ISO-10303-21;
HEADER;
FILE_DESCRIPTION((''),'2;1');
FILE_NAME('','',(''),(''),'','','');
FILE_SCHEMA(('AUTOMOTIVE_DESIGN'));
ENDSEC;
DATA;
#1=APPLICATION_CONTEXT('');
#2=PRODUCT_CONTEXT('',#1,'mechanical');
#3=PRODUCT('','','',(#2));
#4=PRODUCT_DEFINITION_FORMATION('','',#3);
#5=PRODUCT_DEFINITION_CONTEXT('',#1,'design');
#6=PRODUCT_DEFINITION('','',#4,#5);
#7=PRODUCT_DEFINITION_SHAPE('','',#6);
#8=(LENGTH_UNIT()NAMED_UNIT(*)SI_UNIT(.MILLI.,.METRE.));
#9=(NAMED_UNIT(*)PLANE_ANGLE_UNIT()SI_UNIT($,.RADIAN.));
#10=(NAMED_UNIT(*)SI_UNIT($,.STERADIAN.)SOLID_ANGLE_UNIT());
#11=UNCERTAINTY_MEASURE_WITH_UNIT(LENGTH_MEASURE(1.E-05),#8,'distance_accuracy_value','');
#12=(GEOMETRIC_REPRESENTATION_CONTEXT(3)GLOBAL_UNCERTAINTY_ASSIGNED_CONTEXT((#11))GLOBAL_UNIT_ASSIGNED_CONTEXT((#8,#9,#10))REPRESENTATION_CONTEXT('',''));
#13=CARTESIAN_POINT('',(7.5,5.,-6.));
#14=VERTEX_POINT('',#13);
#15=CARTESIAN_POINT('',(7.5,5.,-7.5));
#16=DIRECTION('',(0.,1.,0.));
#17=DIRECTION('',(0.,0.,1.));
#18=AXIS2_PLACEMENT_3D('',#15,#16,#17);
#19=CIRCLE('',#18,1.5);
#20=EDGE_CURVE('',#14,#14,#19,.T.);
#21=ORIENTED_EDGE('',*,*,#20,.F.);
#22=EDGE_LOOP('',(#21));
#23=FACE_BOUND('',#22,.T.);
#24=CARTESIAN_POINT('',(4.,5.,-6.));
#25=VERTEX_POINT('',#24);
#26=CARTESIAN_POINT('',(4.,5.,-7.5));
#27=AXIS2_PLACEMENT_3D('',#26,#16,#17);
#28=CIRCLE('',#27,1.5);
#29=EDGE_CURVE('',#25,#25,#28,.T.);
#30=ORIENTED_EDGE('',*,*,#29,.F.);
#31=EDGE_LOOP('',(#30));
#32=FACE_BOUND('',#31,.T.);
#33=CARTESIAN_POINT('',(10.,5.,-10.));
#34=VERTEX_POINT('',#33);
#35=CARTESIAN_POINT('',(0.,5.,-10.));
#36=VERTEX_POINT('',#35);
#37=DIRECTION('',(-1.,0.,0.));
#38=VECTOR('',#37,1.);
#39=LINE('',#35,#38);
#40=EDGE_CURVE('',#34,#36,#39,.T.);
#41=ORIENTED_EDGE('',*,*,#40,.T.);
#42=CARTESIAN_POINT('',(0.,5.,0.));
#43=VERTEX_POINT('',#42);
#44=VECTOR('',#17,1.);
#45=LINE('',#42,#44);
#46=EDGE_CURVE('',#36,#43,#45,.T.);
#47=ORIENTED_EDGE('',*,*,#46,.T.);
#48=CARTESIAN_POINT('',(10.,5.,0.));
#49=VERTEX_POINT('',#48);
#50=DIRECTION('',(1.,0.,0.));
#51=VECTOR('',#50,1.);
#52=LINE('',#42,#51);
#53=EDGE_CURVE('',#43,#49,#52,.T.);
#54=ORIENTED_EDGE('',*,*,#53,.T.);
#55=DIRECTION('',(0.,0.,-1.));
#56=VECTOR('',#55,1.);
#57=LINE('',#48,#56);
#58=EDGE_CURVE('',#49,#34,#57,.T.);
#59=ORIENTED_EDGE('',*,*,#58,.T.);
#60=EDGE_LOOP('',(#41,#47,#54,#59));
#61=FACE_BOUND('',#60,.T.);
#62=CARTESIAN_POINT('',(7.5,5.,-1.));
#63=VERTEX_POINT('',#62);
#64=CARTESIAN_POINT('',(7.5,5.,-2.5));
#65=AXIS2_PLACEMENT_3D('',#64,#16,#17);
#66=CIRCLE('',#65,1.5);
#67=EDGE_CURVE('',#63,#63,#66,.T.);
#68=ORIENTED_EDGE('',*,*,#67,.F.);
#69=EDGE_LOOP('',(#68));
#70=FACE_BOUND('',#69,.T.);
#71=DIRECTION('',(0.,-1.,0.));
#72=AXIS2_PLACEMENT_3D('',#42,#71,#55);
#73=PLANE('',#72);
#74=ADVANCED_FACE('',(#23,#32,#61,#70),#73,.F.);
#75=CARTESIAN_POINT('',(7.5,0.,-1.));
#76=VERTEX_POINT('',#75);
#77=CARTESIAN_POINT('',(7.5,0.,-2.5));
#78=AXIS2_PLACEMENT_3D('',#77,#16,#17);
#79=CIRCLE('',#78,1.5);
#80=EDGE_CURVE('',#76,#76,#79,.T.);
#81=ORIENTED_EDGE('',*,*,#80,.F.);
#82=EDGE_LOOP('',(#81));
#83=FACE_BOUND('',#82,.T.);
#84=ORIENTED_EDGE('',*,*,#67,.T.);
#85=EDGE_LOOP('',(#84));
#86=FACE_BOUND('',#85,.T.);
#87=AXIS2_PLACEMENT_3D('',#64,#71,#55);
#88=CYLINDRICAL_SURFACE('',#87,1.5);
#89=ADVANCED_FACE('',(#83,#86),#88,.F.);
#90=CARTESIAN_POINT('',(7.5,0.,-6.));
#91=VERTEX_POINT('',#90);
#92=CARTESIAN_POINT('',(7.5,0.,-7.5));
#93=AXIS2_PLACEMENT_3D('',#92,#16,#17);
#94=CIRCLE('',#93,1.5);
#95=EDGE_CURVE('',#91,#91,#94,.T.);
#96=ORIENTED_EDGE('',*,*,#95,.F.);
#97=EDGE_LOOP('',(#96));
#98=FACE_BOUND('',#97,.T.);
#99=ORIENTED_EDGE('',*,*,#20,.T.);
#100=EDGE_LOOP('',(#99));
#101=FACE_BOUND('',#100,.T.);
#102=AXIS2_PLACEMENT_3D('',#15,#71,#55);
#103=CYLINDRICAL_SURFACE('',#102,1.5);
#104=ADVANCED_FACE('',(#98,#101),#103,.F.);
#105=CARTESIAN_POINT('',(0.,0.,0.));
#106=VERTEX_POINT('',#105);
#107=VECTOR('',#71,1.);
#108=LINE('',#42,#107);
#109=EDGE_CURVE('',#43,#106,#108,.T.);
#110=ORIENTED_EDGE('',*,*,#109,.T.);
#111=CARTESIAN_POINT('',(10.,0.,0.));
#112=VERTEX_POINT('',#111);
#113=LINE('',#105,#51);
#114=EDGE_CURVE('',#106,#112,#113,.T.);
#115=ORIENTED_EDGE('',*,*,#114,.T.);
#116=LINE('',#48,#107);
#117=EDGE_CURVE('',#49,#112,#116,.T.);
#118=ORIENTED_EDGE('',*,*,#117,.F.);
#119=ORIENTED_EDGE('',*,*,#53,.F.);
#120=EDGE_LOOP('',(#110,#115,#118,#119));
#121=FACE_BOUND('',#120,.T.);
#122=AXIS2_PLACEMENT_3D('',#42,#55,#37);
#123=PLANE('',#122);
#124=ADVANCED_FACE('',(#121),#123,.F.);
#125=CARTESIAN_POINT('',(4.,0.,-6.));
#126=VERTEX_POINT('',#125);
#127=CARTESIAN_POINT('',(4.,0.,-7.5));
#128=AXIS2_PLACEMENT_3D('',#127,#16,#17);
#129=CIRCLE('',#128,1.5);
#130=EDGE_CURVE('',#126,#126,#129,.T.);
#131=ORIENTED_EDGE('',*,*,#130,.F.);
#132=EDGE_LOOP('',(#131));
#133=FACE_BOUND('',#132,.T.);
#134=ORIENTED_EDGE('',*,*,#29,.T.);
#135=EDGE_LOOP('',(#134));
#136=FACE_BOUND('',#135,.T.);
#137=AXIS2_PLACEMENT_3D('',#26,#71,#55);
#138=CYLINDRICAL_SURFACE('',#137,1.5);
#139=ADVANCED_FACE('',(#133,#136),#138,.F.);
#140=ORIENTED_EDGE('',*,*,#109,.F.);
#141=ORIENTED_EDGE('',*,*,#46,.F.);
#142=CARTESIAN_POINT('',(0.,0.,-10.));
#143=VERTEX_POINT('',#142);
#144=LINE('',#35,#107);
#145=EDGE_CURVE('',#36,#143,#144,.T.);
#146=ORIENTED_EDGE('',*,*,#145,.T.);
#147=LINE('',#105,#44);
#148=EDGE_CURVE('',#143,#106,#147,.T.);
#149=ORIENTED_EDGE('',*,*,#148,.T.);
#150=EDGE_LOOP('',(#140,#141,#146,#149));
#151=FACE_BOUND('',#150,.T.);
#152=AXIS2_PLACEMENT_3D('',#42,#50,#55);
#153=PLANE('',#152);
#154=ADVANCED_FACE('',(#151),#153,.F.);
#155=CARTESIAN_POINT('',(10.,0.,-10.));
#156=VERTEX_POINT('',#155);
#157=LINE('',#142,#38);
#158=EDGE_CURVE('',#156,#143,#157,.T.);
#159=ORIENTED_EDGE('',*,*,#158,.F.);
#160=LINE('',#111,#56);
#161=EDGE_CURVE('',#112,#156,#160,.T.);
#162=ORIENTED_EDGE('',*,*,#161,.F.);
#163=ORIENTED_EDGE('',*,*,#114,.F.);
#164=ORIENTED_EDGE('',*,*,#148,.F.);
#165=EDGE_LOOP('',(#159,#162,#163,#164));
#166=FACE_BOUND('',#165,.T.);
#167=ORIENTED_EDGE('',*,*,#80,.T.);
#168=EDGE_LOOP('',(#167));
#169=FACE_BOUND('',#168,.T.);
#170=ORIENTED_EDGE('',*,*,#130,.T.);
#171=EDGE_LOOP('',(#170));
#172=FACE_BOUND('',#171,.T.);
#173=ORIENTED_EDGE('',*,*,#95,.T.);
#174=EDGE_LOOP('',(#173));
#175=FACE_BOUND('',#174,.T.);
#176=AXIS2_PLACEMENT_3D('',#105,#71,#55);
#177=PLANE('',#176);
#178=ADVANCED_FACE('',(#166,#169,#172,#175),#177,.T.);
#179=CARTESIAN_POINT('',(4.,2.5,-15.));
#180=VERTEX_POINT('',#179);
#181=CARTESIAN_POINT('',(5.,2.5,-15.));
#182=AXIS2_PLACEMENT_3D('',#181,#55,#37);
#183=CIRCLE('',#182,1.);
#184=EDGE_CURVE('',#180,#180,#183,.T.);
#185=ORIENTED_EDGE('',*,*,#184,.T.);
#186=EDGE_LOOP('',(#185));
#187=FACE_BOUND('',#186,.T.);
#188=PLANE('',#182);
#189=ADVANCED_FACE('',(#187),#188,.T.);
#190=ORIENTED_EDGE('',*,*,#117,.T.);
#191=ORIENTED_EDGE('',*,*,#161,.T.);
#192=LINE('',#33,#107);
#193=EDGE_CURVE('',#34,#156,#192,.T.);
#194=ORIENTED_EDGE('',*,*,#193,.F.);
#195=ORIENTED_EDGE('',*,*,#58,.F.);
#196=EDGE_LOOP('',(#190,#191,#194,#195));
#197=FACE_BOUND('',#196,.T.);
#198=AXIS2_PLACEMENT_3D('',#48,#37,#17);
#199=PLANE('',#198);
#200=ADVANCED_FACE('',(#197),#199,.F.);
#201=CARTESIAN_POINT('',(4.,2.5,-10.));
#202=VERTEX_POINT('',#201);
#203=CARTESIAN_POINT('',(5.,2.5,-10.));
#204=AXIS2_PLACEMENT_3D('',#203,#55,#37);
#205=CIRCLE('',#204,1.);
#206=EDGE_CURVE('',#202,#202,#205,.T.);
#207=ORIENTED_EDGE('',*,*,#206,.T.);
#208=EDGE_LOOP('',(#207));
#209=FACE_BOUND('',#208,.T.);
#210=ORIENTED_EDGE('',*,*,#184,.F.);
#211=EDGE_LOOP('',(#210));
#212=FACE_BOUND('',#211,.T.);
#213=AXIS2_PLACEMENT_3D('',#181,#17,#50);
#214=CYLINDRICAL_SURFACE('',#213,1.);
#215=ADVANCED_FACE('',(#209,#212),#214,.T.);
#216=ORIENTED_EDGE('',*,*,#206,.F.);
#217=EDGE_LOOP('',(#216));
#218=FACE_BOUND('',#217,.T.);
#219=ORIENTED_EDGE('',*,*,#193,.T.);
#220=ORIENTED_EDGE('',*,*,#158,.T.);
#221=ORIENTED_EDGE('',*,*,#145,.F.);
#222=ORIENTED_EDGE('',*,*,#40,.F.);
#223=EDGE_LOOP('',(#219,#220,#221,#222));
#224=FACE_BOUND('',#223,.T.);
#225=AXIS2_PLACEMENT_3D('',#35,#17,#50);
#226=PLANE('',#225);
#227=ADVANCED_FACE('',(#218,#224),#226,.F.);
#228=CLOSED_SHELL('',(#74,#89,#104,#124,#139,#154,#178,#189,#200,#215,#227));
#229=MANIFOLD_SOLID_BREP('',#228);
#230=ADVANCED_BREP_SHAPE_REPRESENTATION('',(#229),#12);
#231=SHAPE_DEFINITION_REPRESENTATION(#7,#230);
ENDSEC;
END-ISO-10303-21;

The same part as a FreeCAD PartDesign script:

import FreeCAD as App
import Part
import Sketcher

V = App.Vector


def add_polygon(sketch, points):
    """Adds a closed chain of lines whose ends are joined by coincident constraints."""
    first, n = sketch.GeometryCount, len(points)
    for a, b in zip(points, points[1:] + points[:1]):
        sketch.addGeometry(Part.LineSegment(App.Vector(*a, 0), App.Vector(*b, 0)), False)
    for i in range(n):
        sketch.addConstraint(Sketcher.Constraint("Coincident", first + i, 2, first + (i + 1) % n, 1))

doc = App.newDocument("Part")
body = doc.addObject("PartDesign::Body", "Body")

sketch1 = doc.addObject("Sketcher::SketchObject", "Sketch")
body.addObject(sketch1)
sketch1.AttachmentSupport = (doc.XZ_Plane, [""])
sketch1.MapMode = "FlatFace"
add_polygon(sketch1, [(0, -10), (0, 0), (10, 0), (10, -10)])
sketch1.addGeometry(Part.Circle(V(7.5, -2.5, 0), V(0, 0, 1), 1.5), False)
sketch1.addGeometry(Part.Circle(V(4, -7.5, 0), V(0, 0, 1), 1.5), False)
sketch1.addGeometry(Part.Circle(V(7.5, -7.5, 0), V(0, 0, 1), 1.5), False)
sketch1.addConstraint([
    Sketcher.Constraint("Vertical", 0),
    Sketcher.Constraint("Horizontal", 1),
    Sketcher.Constraint("Vertical", 2),
    Sketcher.Constraint("Horizontal", 3),
    Sketcher.Constraint("Coincident", 0, 2, -1, 1),
    Sketcher.Constraint("Equal", 4, 5),
    Sketcher.Constraint("Equal", 5, 6),
    Sketcher.Constraint("Horizontal", 5, 3, 6, 3),
    Sketcher.Constraint("Vertical", 4, 3, 6, 3),
    Sketcher.Constraint("Equal", 3, 0),
    Sketcher.Constraint("Diameter", 4, 3.0),
    Sketcher.Constraint("DistanceX", 1, 1, 1, 2, 10.0),
    Sketcher.Constraint("DistanceX", -1, 1, 5, 3, 4.0),
    Sketcher.Constraint("DistanceY", 5, 3, 4, 3, 5.0),
    Sketcher.Constraint("DistanceX", -1, 1, 4, 3, 7.5),
    Sketcher.Constraint("DistanceY", 4, 3, -1, 1, 2.5),
])
pad1 = doc.addObject("PartDesign::Pad", "Pad")
body.addObject(pad1)
pad1.Profile = sketch1
pad1.Length = 5
pad1.Reversed = True

sketch2 = doc.addObject("Sketcher::SketchObject", "Sketch001")
body.addObject(sketch2)
sketch2.AttachmentSupport = (doc.XY_Plane, [""])
sketch2.MapMode = "FlatFace"
sketch2.AttachmentOffset = App.Placement(V(0, 0, -10), App.Rotation())
sketch2.addGeometry(Part.Circle(V(5, 2.5, 0), V(0, 0, 1), 1), False)
sketch2.addConstraint([
    Sketcher.Constraint("Diameter", 0, 2.0),
    Sketcher.Constraint("DistanceX", -1, 1, 0, 3, 5.0),
    Sketcher.Constraint("DistanceY", -1, 1, 0, 3, 2.5),
])
pad2 = doc.addObject("PartDesign::Pad", "Pad001")
body.addObject(pad2)
pad2.Profile = sketch2
pad2.Length = 5
pad2.Reversed = True

doc.recompute()
